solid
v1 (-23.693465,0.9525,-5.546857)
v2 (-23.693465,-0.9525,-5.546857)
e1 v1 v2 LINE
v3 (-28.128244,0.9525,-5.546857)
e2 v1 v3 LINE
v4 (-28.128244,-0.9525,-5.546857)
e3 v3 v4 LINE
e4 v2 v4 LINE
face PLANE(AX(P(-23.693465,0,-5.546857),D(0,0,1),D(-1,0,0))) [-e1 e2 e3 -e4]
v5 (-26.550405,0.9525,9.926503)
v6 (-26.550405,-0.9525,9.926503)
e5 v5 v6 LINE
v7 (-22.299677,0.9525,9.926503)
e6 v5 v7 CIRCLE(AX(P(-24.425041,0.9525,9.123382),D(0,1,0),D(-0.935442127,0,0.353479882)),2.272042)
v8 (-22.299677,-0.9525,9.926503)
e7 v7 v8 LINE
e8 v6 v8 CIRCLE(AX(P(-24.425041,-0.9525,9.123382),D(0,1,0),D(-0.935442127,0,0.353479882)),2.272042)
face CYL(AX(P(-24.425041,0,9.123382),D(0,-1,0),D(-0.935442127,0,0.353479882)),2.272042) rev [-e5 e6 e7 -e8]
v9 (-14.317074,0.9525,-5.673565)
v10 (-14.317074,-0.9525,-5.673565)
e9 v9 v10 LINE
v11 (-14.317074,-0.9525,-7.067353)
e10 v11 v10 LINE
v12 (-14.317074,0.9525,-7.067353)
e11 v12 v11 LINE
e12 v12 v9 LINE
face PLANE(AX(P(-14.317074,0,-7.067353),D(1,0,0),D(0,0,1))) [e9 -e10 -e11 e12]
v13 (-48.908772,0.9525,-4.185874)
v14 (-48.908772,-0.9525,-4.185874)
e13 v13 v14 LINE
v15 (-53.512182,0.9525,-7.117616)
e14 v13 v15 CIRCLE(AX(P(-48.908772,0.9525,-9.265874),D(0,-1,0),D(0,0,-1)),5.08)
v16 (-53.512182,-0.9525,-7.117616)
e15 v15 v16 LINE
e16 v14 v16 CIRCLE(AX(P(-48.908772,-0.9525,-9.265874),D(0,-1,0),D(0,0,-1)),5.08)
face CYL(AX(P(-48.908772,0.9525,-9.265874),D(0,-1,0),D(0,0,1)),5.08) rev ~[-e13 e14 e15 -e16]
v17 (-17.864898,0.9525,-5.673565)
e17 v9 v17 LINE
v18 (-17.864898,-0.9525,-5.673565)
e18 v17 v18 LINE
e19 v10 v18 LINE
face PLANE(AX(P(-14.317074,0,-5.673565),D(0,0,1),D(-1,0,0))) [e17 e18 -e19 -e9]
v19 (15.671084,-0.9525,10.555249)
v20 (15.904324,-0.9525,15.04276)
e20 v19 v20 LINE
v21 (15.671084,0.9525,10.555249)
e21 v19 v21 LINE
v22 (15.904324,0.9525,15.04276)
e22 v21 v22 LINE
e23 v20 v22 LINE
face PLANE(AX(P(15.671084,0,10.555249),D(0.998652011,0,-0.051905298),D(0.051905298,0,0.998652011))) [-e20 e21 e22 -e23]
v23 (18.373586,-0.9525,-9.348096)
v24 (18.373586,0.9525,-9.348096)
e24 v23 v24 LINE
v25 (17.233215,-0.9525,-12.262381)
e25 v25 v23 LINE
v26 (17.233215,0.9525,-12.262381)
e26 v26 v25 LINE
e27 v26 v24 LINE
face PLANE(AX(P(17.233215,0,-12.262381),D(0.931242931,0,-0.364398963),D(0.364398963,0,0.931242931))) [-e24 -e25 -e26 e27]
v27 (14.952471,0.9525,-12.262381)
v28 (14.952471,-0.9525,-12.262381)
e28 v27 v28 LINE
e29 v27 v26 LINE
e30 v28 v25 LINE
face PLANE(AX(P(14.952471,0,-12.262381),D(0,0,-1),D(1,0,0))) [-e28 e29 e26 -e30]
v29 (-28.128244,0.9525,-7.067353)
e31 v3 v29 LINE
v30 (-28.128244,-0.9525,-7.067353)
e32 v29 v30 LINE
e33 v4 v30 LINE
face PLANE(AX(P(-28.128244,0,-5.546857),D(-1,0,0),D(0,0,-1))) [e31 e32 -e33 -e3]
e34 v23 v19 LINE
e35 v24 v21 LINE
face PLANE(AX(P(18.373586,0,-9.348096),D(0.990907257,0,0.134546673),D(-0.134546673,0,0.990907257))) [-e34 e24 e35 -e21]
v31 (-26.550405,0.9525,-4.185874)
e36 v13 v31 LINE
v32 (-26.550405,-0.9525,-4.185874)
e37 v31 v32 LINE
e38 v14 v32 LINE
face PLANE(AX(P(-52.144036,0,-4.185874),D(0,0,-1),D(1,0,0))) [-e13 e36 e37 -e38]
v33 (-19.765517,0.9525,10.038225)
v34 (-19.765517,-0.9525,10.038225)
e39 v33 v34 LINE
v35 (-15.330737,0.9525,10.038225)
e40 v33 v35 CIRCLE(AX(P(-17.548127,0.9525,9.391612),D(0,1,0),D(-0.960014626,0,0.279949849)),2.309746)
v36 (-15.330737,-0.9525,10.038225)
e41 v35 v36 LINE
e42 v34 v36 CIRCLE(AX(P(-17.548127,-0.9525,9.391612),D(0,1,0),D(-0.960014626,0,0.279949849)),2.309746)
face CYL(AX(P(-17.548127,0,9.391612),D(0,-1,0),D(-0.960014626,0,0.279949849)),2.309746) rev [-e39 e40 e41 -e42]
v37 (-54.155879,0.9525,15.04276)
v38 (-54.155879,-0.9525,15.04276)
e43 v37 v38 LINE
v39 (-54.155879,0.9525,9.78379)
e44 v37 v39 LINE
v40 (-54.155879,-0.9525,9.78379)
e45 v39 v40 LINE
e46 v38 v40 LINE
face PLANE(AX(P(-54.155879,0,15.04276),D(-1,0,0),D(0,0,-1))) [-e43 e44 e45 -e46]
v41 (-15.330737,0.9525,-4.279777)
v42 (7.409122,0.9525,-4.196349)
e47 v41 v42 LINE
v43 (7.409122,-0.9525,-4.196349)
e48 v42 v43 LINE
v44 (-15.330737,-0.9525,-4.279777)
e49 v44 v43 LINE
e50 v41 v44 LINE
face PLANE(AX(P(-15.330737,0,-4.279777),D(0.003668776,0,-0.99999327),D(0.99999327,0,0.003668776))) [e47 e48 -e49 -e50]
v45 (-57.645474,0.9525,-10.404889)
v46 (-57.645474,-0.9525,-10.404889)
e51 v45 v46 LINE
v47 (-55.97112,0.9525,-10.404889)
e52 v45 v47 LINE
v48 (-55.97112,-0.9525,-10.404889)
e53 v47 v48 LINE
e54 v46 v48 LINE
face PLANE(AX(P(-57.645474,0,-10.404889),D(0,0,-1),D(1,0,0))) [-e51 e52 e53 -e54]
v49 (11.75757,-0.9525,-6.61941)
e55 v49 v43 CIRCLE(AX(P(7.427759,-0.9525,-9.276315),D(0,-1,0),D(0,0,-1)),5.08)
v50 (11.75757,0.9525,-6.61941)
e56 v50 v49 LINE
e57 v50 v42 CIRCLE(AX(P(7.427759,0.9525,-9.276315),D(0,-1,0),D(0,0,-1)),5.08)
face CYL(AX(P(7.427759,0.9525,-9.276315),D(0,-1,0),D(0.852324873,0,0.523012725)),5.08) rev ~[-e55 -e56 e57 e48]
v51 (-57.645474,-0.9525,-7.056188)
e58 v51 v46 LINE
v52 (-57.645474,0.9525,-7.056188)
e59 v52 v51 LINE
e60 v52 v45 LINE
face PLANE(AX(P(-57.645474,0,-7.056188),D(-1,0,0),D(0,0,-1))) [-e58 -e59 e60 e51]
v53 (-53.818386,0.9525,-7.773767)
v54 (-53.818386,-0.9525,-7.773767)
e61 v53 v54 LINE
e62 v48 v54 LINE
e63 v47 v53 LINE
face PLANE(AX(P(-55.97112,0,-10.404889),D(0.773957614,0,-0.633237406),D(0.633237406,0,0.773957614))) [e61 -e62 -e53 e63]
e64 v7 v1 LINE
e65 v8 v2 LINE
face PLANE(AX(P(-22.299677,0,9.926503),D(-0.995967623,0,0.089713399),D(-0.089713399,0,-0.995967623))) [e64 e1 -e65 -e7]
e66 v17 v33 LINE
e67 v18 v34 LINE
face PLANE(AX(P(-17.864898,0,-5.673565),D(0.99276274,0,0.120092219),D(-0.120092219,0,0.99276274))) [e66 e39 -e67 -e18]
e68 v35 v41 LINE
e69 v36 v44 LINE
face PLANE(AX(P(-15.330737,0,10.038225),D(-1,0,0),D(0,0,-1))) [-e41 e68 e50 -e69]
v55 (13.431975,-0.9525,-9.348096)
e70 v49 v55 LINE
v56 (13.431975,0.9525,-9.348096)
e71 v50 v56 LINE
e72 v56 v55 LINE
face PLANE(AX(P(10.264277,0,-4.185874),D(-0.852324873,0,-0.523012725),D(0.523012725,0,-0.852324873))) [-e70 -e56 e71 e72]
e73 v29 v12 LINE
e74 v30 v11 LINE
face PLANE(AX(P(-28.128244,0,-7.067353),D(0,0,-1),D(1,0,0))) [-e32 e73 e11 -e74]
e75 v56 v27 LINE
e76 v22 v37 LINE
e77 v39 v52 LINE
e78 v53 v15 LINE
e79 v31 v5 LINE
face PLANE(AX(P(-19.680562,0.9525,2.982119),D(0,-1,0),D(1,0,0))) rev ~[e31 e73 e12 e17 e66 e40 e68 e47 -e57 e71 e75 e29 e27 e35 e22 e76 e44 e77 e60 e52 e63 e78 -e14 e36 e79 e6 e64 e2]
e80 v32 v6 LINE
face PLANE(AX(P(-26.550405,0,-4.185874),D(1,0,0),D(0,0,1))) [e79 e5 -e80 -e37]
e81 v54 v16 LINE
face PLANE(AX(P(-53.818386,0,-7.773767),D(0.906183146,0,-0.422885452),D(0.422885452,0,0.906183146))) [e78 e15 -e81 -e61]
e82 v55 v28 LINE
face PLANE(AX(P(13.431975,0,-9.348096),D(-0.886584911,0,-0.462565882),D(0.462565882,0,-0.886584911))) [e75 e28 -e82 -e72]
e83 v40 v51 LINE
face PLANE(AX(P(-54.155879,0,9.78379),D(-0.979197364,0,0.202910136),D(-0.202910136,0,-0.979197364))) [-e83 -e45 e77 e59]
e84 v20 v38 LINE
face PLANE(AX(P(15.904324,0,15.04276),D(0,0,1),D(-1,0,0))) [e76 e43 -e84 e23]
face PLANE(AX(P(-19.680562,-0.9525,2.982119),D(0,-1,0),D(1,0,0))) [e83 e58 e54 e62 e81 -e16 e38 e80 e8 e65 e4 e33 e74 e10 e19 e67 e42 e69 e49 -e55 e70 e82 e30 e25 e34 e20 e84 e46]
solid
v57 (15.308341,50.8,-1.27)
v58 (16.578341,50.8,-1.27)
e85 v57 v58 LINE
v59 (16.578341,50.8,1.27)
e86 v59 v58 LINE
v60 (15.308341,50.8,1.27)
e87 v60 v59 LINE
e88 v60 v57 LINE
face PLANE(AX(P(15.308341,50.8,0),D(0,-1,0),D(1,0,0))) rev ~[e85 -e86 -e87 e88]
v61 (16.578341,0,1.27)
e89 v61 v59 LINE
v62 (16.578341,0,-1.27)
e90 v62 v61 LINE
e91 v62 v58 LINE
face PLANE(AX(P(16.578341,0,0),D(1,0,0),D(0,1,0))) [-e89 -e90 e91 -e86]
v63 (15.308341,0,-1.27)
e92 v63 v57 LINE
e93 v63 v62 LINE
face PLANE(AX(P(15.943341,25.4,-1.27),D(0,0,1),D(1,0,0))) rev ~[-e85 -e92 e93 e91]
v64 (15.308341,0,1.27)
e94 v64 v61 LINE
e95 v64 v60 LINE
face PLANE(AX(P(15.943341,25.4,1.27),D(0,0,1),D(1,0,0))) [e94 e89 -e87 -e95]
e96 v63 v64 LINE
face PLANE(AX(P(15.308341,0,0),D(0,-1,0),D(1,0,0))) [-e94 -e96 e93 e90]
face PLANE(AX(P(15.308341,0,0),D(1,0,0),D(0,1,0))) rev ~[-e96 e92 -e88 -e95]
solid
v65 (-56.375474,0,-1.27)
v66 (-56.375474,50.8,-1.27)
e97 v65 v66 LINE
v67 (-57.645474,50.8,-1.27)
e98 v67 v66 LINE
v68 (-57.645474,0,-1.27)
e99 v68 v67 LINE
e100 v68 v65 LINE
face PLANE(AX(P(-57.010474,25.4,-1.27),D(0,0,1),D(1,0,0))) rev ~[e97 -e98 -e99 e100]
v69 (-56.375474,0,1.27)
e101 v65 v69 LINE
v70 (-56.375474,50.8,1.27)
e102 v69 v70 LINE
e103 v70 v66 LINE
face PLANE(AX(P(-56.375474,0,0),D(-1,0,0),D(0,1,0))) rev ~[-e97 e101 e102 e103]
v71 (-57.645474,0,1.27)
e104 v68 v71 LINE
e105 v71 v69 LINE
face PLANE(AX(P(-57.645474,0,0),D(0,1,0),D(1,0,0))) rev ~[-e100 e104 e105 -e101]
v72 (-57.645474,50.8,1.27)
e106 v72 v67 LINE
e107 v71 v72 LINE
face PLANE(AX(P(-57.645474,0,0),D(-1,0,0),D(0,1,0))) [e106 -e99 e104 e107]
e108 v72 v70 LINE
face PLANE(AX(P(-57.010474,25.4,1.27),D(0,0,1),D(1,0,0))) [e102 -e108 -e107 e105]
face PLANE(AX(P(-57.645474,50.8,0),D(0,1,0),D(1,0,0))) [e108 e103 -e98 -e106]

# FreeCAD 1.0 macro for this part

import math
import FreeCAD as App
import Part
import Sketcher
from FreeCAD import Vector
Q = App.Units.Quantity


def edges_at(feature, points):
    """Names of the edges that pass closest to the given points."""
    edges = feature.Shape.Edges
    near = lambda p: min(range(len(edges)), key=lambda i: edges[i].distToShape(Part.Vertex(*p))[0])
    return sorted({f"Edge{near(p) + 1}" for p in points})


def add_polygon(sketch, points):
    """Adds a closed chain of lines whose ends are joined by coincident constraints."""
    first, n = sketch.GeometryCount, len(points)
    for a, b in zip(points, points[1:] + points[:1]):
        sketch.addGeometry(Part.LineSegment(App.Vector(*a, 0), App.Vector(*b, 0)), False)
    for i in range(n):
        sketch.addConstraint(Sketcher.Constraint("Coincident", first + i, 2, first + (i + 1) % n, 1))

doc = App.newDocument("Part")
body = doc.addObject("PartDesign::Body", "Body")

# Sketch on XZ plane
sketch1 = doc.addObject("Sketcher::SketchObject", "Sketch")
body.addObject(sketch1)
sketch1.AttachmentSupport = (doc.XZ_Plane, [""])
sketch1.MapMode = "FlatFace"
sketch1.addGeometry(Part.LineSegment(Vector(15.9, 15, 0), Vector(-54.2, 15, 0)), False)
sketch1.addGeometry(Part.LineSegment(Vector(-54.2, 15, 0), Vector(-54.2, 9.8, 0)), False)
sketch1.addGeometry(Part.LineSegment(Vector(-54.2, 9.8, 0), Vector(-57.6, -7.1, 0)), False)
sketch1.addGeometry(Part.LineSegment(Vector(-57.6, -7.1, 0), Vector(-57.6, -10.4, 0)), False)
sketch1.addGeometry(Part.LineSegment(Vector(-57.6, -10.4, 0), Vector(-56, -10.4, 0)), False)
sketch1.addGeometry(Part.LineSegment(Vector(-56, -10.4, 0), Vector(-53.8, -7.8, 0)), False)
sketch1.addGeometry(Part.LineSegment(Vector(-53.8, -7.8, 0), Vector(-52.1, -4.2, 0)), False)
sketch1.addGeometry(Part.LineSegment(Vector(-52.1, -4.2, 0), Vector(-26.6, -4.2, 0)), False)
sketch1.addGeometry(Part.LineSegment(Vector(-26.6, -4.2, 0), Vector(-26.6, 9.9, 0)), False)
sketch1.addGeometry(Part.ArcOfCircle(Part.Circle(Vector(-24.4, 9.1, 0), Vector(0, 0, 1), 2.3), math.radians(21), math.radians(159)), False)
sketch1.addGeometry(Part.LineSegment(Vector(-22.3, 9.9, 0), Vector(-23.7, -5.5, 0)), False)
sketch1.addGeometry(Part.LineSegment(Vector(-23.7, -5.5, 0), Vector(-28.1, -5.5, 0)), False)
sketch1.addGeometry(Part.LineSegment(Vector(-28.1, -5.5, 0), Vector(-28.1, -7.1, 0)), False)
sketch1.addGeometry(Part.LineSegment(Vector(-28.1, -7.1, 0), Vector(-14.3, -7.1, 0)), False)
sketch1.addGeometry(Part.LineSegment(Vector(-14.3, -7.1, 0), Vector(-14.3, -5.7, 0)), False)
sketch1.addGeometry(Part.LineSegment(Vector(-14.3, -5.7, 0), Vector(-17.9, -5.7, 0)), False)
sketch1.addGeometry(Part.LineSegment(Vector(-17.9, -5.7, 0), Vector(-19.8, 10, 0)), False)
sketch1.addGeometry(Part.ArcOfCircle(Part.Circle(Vector(-17.5, 9.4, 0), Vector(0, 0, 1), 2.3), math.radians(16), math.radians(164)), False)
sketch1.addGeometry(Part.LineSegment(Vector(-15.3, 10, 0), Vector(-15.3, -4.3, 0)), False)
sketch1.addGeometry(Part.LineSegment(Vector(-15.3, -4.3, 0), Vector(10.3, -4.2, 0)), False)
sketch1.addGeometry(Part.LineSegment(Vector(10.3, -4.2, 0), Vector(13.4, -9.3, 0)), False)
sketch1.addGeometry(Part.LineSegment(Vector(13.4, -9.3, 0), Vector(15, -12.3, 0)), False)
sketch1.addGeometry(Part.LineSegment(Vector(15, -12.3, 0), Vector(17.2, -12.3, 0)), False)
sketch1.addGeometry(Part.LineSegment(Vector(17.2, -12.3, 0), Vector(18.4, -9.3, 0)), False)
sketch1.addGeometry(Part.LineSegment(Vector(18.4, -9.3, 0), Vector(15.7, 10.6, 0)), False)
sketch1.addGeometry(Part.LineSegment(Vector(15.7, 10.6, 0), Vector(15.9, 15, 0)), False)
sketch1.addConstraint(Sketcher.Constraint("Coincident", 0, 2, 1, 1))
sketch1.addConstraint(Sketcher.Constraint("Coincident", 1, 2, 2, 1))
sketch1.addConstraint(Sketcher.Constraint("Coincident", 2, 2, 3, 1))
sketch1.addConstraint(Sketcher.Constraint("Coincident", 3, 2, 4, 1))
sketch1.addConstraint(Sketcher.Constraint("Coincident", 4, 2, 5, 1))
sketch1.addConstraint(Sketcher.Constraint("Coincident", 5, 2, 6, 1))
sketch1.addConstraint(Sketcher.Constraint("Coincident", 6, 2, 7, 1))
sketch1.addConstraint(Sketcher.Constraint("Coincident", 7, 2, 8, 1))
sketch1.addConstraint(Sketcher.Constraint("Coincident", 8, 2, 9, 2))
sketch1.addConstraint(Sketcher.Constraint("Coincident", 9, 1, 10, 1))
sketch1.addConstraint(Sketcher.Constraint("Coincident", 10, 2, 11, 1))
sketch1.addConstraint(Sketcher.Constraint("Coincident", 11, 2, 12, 1))
sketch1.addConstraint(Sketcher.Constraint("Coincident", 12, 2, 13, 1))
sketch1.addConstraint(Sketcher.Constraint("Coincident", 13, 2, 14, 1))
sketch1.addConstraint(Sketcher.Constraint("Coincident", 14, 2, 15, 1))
sketch1.addConstraint(Sketcher.Constraint("Coincident", 15, 2, 16, 1))
sketch1.addConstraint(Sketcher.Constraint("Coincident", 16, 2, 17, 2))
sketch1.addConstraint(Sketcher.Constraint("Coincident", 17, 1, 18, 1))
sketch1.addConstraint(Sketcher.Constraint("Coincident", 18, 2, 19, 1))
sketch1.addConstraint(Sketcher.Constraint("Coincident", 19, 2, 20, 1))
sketch1.addConstraint(Sketcher.Constraint("Coincident", 20, 2, 21, 1))
sketch1.addConstraint(Sketcher.Constraint("Coincident", 21, 2, 22, 1))
sketch1.addConstraint(Sketcher.Constraint("Coincident", 22, 2, 23, 1))
sketch1.addConstraint(Sketcher.Constraint("Coincident", 23, 2, 24, 1))
sketch1.addConstraint(Sketcher.Constraint("Coincident", 24, 2, 25, 1))
sketch1.addConstraint(Sketcher.Constraint("Coincident", 25, 2, 0, 1))
sketch1.addConstraint(Sketcher.Constraint("Horizontal", 0))
sketch1.addConstraint(Sketcher.Constraint("Vertical", 1))
sketch1.addConstraint(Sketcher.Constraint("Vertical", 3))
sketch1.addConstraint(Sketcher.Constraint("Horizontal", 4))
sketch1.addConstraint(Sketcher.Constraint("Horizontal", 7))
sketch1.addConstraint(Sketcher.Constraint("Vertical", 8))
sketch1.addConstraint(Sketcher.Constraint("Horizontal", 11))
sketch1.addConstraint(Sketcher.Constraint("Vertical", 12))
sketch1.addConstraint(Sketcher.Constraint("Horizontal", 13))
sketch1.addConstraint(Sketcher.Constraint("Vertical", 14))
sketch1.addConstraint(Sketcher.Constraint("Horizontal", 15))
sketch1.addConstraint(Sketcher.Constraint("Vertical", 18))
sketch1.addConstraint(Sketcher.Constraint("Horizontal", 22))
sketch1.addConstraint(Sketcher.Constraint("Horizontal", 8, 2, 9, 1))
sketch1.addConstraint(Sketcher.Constraint("Horizontal", 16, 2, 17, 1))
sketch1.addConstraint(Sketcher.Constraint("Horizontal", 7, 2, 19, 2))
sketch1.addConstraint(Sketcher.Constraint("Horizontal", 20, 2, 23, 2))
sketch1.addConstraint(Sketcher.Constraint("DistanceY", 3, 2, 3, 1, Q("3.348701 mm")))
sketch1.addConstraint(Sketcher.Constraint("Radius", 9, Q("2.272042 mm")))
sketch1.addConstraint(Sketcher.Constraint("Radius", 17, Q("2.309746 mm")))
sketch1.addConstraint(Sketcher.Constraint("DistanceX", 7, 1, 7, 2, Q("25.593631 mm")))
sketch1.addConstraint(Sketcher.Constraint("DistanceX", 11, 2, 11, 1, Q("4.434779 mm")))
sketch1.addConstraint(Sketcher.Constraint("DistanceX", 13, 1, 13, 2, Q("13.81117 mm")))
sketch1.addConstraint(Sketcher.Constraint("DistanceY", 1, 2, 1, 1, Q("5.25897 mm")))
sketch1.addConstraint(Sketcher.Constraint("DistanceX", 15, 2, -1, 1, Q("17.864898 mm")))
sketch1.addConstraint(Sketcher.Constraint("DistanceY", 2, 2, 17, 3, Q("16.4478 mm")))
sketch1.addConstraint(Sketcher.Constraint("DistanceX", 1, 2, 9, 1, Q("31.856202 mm")))
sketch1.addConstraint(Sketcher.Constraint("DistanceY", 7, 2, 16, 2, Q("14.224099 mm")))
sketch1.addConstraint(Sketcher.Constraint("DistanceX", 24, 2, 23, 2, Q("2.702502 mm")))
sketch1.addConstraint(Sketcher.Constraint("Distance", 5, Q("3.399569 mm")))
sketch1.addConstraint(Sketcher.Constraint("Distance", 16, Q("15.826329 mm")))
sketch1.addConstraint(Sketcher.Constraint("Distance", 21, Q("3.287091 mm")))
sketch1.addConstraint(Sketcher.Constraint("Distance", 24, Q("20.085982 mm")))
sketch1.addConstraint(Sketcher.Constraint("Distance", 25, Q("4.493568 mm")))
sketch1.addConstraint(Sketcher.Constraint("DistanceX", 0, 2, 0, 1, Q("70.060203 mm")))
sketch1.addConstraint(Sketcher.Constraint("DistanceX", 4, 1, 4, 2, Q("1.674354 mm")))
sketch1.addConstraint(Sketcher.Constraint("DistanceX", 15, 2, 15, 1, Q("3.547824 mm")))
sketch1.addConstraint(Sketcher.Constraint("DistanceX", 22, 1, 22, 2, Q("2.280744 mm")))
sketch1.addConstraint(Sketcher.Constraint("DistanceY", 8, 1, 8, 2, Q("14.112377 mm")))
sketch1.addConstraint(Sketcher.Constraint("DistanceY", 12, 2, 12, 1, Q("1.520496 mm")))
sketch1.addConstraint(Sketcher.Constraint("DistanceY", 14, 1, 14, 2, Q("1.393788 mm")))
sketch1.addConstraint(Sketcher.Constraint("DistanceY", 18, 2, 18, 1, Q("14.318002 mm")))
sketch1.addConstraint(Sketcher.Constraint("DistanceX", 9, 3, -1, 1, Q("24.425041 mm")))
sketch1.addConstraint(Sketcher.Constraint("DistanceY", -1, 1, 9, 3, Q("9.123382 mm")))
sketch1.addConstraint(Sketcher.Constraint("DistanceY", -1, 1, 17, 3, Q("9.391612 mm")))
sketch1.addConstraint(Sketcher.Constraint("DistanceX", 0, 2, -1, 1, Q("54.155879 mm")))
sketch1.addConstraint(Sketcher.Constraint("DistanceY", -1, 1, 0, 2, Q("15.04276 mm")))
sketch1.addConstraint(Sketcher.Constraint("DistanceX", 4, 2, -1, 1, Q("55.97112 mm")))
sketch1.addConstraint(Sketcher.Constraint("DistanceX", -1, 1, 21, 2, Q("14.952471 mm")))
sketch1.addConstraint(Sketcher.Constraint("DistanceY", 21, 2, -1, 1, Q("12.262381 mm")))
sketch1.addConstraint(Sketcher.Constraint("DistanceY", -1, 1, 24, 2, Q("10.555249 mm")))
sketch1.addConstraint(Sketcher.Constraint("DistanceX", 0, 2, 17, 3, Q("36.607752 mm")))
sketch1.addConstraint(Sketcher.Constraint("DistanceX", 2, 2, 5, 2, Q("3.827088 mm")))
sketch1.addConstraint(Sketcher.Constraint("DistanceX", 14, 2, 19, 2, Q("24.581351 mm")))
pad1 = doc.addObject("PartDesign::Pad", "Pad")
body.addObject(pad1)
pad1.Profile = sketch1
pad1.Length = Q("0.075 in")
pad1.Midplane = True
doc.recompute()

fillet = doc.addObject("PartDesign::Fillet", "Fillet")
body.addObject(fillet)
fillet.Base = (pad1, edges_at(pad1, [(-52.144, 0, -4.186), (10.264, 0, -4.186)]))
fillet.Radius = Q("0.2 in")
body2 = doc.addObject("PartDesign::Body", "Body001")
body2.AllowCompound = True

# Sketch on XY plane
sketch2 = doc.addObject("Sketcher::SketchObject", "Sketch001")
body2.addObject(sketch2)
sketch2.AttachmentSupport = (doc.getObject("XY_Plane001"), [""])
sketch2.MapMode = "FlatFace"
add_polygon(sketch2, [(-57.6, 50.8), (-57.6, 0), (-56.4, 0), (-56.4, 50.8)])  # lines 0-3
add_polygon(sketch2, [(15.3, 50.8), (15.3, 0), (16.6, 0), (16.6, 50.8)])  # lines 4-7
sketch2.addConstraint(Sketcher.Constraint("Vertical", 0))
sketch2.addConstraint(Sketcher.Constraint("Horizontal", 1))
sketch2.addConstraint(Sketcher.Constraint("Vertical", 2))
sketch2.addConstraint(Sketcher.Constraint("Horizontal", 3))
sketch2.addConstraint(Sketcher.Constraint("Vertical", 4))
sketch2.addConstraint(Sketcher.Constraint("Horizontal", 5))
sketch2.addConstraint(Sketcher.Constraint("Vertical", 6))
sketch2.addConstraint(Sketcher.Constraint("Horizontal", 7))
sketch2.addConstraint(Sketcher.Constraint("PointOnObject", 0, 2, -1))
sketch2.addConstraint(Sketcher.Constraint("PointOnObject", 4, 2, -1))
sketch2.addConstraint(Sketcher.Constraint("Horizontal", 3, 2, 6, 2))
sketch2.addConstraint(Sketcher.Constraint("Equal", 3, 5))
sketch2.addConstraint(Sketcher.Constraint("DistanceY", 0, 2, 0, 1, Q("2 in")))
sketch2.addConstraint(Sketcher.Constraint("DistanceX", 1, 1, 1, 2, Q("0.05 in")))
sketch2.addConstraint(Sketcher.Constraint("DistanceX", -1, 1, 4, 2, Q("15.308341 mm")))
sketch2.addConstraint(Sketcher.Constraint("DistanceX", 0, 2, -1, 1, Q("57.645474 mm")))
pad2 = doc.addObject("PartDesign::Pad", "Pad001")
body2.addObject(pad2)
pad2.Profile = sketch2
pad2.Length = Q("0.1 in")
pad2.Midplane = True

doc.recompute()
